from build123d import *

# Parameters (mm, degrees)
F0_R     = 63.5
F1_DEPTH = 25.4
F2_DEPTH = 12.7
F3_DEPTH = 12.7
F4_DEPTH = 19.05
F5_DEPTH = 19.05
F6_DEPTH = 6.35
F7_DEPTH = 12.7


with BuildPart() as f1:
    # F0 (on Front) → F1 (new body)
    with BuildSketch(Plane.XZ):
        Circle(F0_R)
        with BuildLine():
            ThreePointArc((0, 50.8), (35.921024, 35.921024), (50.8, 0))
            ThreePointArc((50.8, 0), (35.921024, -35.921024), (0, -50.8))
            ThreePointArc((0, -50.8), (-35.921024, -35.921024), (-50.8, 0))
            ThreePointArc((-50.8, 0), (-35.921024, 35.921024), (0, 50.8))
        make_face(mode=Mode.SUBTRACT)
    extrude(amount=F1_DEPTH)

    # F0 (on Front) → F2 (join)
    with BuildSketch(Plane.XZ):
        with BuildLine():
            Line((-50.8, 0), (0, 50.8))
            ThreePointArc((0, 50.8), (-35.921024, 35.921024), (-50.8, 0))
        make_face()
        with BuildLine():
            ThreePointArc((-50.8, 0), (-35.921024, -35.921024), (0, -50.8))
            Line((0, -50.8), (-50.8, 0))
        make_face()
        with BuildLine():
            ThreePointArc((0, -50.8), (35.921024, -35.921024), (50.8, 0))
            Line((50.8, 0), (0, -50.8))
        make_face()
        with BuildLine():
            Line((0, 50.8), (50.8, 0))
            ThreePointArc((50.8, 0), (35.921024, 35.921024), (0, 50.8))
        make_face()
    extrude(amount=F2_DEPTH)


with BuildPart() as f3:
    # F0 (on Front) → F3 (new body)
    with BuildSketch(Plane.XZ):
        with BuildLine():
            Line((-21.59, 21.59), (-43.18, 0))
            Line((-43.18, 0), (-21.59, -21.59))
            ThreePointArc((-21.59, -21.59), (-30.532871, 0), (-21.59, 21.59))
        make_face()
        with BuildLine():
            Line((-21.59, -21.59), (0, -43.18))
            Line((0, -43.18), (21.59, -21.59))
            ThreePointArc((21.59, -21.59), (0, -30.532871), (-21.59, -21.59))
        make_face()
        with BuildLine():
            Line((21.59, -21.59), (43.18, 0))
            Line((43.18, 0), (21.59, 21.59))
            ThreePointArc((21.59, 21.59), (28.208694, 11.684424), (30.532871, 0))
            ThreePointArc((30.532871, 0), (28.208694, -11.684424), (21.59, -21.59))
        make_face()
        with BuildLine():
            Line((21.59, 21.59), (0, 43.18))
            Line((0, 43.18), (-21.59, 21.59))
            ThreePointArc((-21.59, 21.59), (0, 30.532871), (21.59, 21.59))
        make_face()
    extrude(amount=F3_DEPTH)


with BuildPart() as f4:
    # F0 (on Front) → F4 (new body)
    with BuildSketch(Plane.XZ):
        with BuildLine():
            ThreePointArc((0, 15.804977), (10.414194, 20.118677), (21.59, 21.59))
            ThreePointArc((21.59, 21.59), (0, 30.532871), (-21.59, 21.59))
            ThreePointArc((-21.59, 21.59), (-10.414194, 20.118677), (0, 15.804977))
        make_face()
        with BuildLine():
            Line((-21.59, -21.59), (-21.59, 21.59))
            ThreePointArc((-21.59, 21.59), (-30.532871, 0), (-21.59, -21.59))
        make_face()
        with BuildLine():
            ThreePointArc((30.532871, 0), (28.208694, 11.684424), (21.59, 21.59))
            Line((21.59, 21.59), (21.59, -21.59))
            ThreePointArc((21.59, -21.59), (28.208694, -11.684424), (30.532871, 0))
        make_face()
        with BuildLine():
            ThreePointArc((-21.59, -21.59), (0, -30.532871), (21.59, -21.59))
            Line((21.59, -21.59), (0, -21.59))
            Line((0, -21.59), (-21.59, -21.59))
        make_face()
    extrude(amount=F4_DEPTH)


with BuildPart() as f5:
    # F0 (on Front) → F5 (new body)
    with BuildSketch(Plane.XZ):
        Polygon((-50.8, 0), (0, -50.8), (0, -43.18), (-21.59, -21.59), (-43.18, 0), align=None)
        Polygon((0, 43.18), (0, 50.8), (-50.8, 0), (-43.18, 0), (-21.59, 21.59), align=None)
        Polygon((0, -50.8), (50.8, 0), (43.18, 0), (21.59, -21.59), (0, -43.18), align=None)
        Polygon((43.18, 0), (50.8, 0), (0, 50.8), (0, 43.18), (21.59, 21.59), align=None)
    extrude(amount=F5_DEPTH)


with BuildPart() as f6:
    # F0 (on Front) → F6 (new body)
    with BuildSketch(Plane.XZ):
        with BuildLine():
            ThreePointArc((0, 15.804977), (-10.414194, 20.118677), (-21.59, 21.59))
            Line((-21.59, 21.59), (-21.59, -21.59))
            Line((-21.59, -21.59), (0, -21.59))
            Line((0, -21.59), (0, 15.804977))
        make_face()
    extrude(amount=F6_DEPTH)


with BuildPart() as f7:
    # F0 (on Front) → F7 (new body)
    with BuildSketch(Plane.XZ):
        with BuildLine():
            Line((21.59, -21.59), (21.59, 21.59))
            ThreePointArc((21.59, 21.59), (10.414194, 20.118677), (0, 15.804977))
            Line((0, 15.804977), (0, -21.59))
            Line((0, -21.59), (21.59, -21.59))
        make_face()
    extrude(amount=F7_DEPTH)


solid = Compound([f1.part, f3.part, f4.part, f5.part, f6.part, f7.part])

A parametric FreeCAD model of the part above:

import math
import FreeCAD as App
import Part
import Sketcher
Q = App.Units.Quantity


def add_polygon(sketch, points):
    """Adds a closed chain of lines whose ends are joined by coincident constraints."""
    first, n = sketch.GeometryCount, len(points)
    for a, b in zip(points, points[1:] + points[:1]):
        sketch.addGeometry(Part.LineSegment(App.Vector(*a, 0), App.Vector(*b, 0)), False)
    for i in range(n):
        sketch.addConstraint(Sketcher.Constraint("Coincident", first + i, 2, first + (i + 1) % n, 1))

doc = App.newDocument("Part")
body = doc.addObject("PartDesign::Body", "Body")

# Sketch on XZ plane
sketch1 = body.newObject("Sketcher::SketchObject", "Sketch")
sketch1.AttachmentSupport = (doc.getObject("XZ_Plane"), [""])
sketch1.MapMode = "FlatFace"
sketch1.addGeometry([
    Part.Circle(App.Vector(0, 0, 0), App.Vector(0, 0, 1), 64),  # 0
    Part.ArcOfCircle(Part.Circle(App.Vector(0, 0, 0), App.Vector(0, 0, 1), 51), math.radians(90), math.radians(180)),  # 1
    Part.ArcOfCircle(Part.Circle(App.Vector(0, 0, 0), App.Vector(0, 0, 1), 51), math.radians(0), math.radians(90)),  # 2
    Part.ArcOfCircle(Part.Circle(App.Vector(0, 0, 0), App.Vector(0, 0, 1), 51), math.radians(-90), math.radians(0)),  # 3
    Part.ArcOfCircle(Part.Circle(App.Vector(0, 0, 0), App.Vector(0, 0, 1), 51), math.radians(-180), math.radians(-90)),  # 4
], False)
sketch1.addConstraint([
    Sketcher.Constraint("Tangent", 1, 1, 2, 2),
    Sketcher.Constraint("Tangent", 2, 1, 3, 2),
    Sketcher.Constraint("Tangent", 3, 1, 4, 2),
    Sketcher.Constraint("Tangent", 4, 1, 1, 2),
    Sketcher.Constraint("Coincident", 0, 3, -1, 1),
    Sketcher.Constraint("Coincident", 1, 3, -1, 1),
    Sketcher.Constraint("Equal", 1, 2),
    Sketcher.Constraint("PointOnObject", 1, 1, -2),
    Sketcher.Constraint("PointOnObject", 2, 1, -1),
    Sketcher.Constraint("PointOnObject", 3, 1, -2),
    Sketcher.Constraint("PointOnObject", 4, 1, -1),
    Sketcher.Constraint("Diameter", 0, Q("5 in")),
    Sketcher.Constraint("Radius", 1, Q("2.0000001 in")),
])
pad1 = body.newObject("PartDesign::Pad", "Pad")
pad1.Profile = sketch1
pad1.Length = Q("1 in")

# Sketch on XZ plane
sketch2 = body.newObject("Sketcher::SketchObject", "Sketch001")
sketch2.AttachmentSupport = (doc.getObject("XZ_Plane"), [""])
sketch2.MapMode = "FlatFace"
sketch2.addGeometry([
    Part.LineSegment(App.Vector(-51, 0, 0), App.Vector(0, 51, 0)),  # 0
    Part.ArcOfCircle(Part.Circle(App.Vector(0, 0, 0), App.Vector(0, 0, 1), 51), math.radians(90), math.radians(180)),  # 1
    Part.ArcOfCircle(Part.Circle(App.Vector(0, 0, 0), App.Vector(0, 0, 1), 51), math.radians(-180), math.radians(-90)),  # 2
    Part.LineSegment(App.Vector(0, -51, 0), App.Vector(-51, 0, 0)),  # 3
    Part.ArcOfCircle(Part.Circle(App.Vector(0, 0, 0), App.Vector(0, 0, 1), 51), math.radians(-90), math.radians(0)),  # 4
    Part.LineSegment(App.Vector(51, 0, 0), App.Vector(0, -51, 0)),  # 5
    Part.LineSegment(App.Vector(0, 51, 0), App.Vector(51, 0, 0)),  # 6
    Part.ArcOfCircle(Part.Circle(App.Vector(0, 0, 0), App.Vector(0, 0, 1), 51), math.radians(0), math.radians(90)),  # 7
], False)
sketch2.addConstraint([
    Sketcher.Constraint("Coincident", 0, 1, 1, 2),
    Sketcher.Constraint("Coincident", 1, 1, 0, 2),
    Sketcher.Constraint("Coincident", 2, 1, 3, 2),
    Sketcher.Constraint("Coincident", 3, 1, 2, 2),
    Sketcher.Constraint("Coincident", 4, 1, 5, 2),
    Sketcher.Constraint("Coincident", 5, 1, 4, 2),
    Sketcher.Constraint("Coincident", 6, 1, 7, 2),
    Sketcher.Constraint("Coincident", 7, 1, 6, 2),
    Sketcher.Constraint("Coincident", 1, 3, -1, 1),
    Sketcher.Constraint("Coincident", 2, 3, -1, 1),
    Sketcher.Constraint("Coincident", 4, 3, -1, 1),
    Sketcher.Constraint("Coincident", 7, 3, -1, 1),
    Sketcher.Constraint("Coincident", 2, 1, 0, 1),
    Sketcher.Constraint("Coincident", 4, 1, 3, 1),
    Sketcher.Constraint("Coincident", 6, 1, 1, 1),
    Sketcher.Constraint("PointOnObject", 0, 1, -1),
    Sketcher.Constraint("PointOnObject", 1, 1, -2),
    Sketcher.Constraint("PointOnObject", 3, 1, -2),
    Sketcher.Constraint("PointOnObject", 5, 1, -1),
    Sketcher.Constraint("PointOnObject", 7, 1, -1),
    Sketcher.Constraint("Radius", 1, Q("2.0000001 in")),
])
pad2 = body.newObject("PartDesign::Pad", "Pad001")
pad2.Profile = sketch2
pad2.Length = Q("0.5 in")
body2 = doc.addObject("PartDesign::Body", "Body001")
body2.AllowCompound = True

# Sketch on XZ plane
sketch3 = body2.newObject("Sketcher::SketchObject", "Sketch002")
sketch3.AttachmentSupport = (doc.getObject("XZ_Plane001"), [""])
sketch3.MapMode = "FlatFace"
sketch3.addGeometry([
    Part.LineSegment(App.Vector(-22, 22, 0), App.Vector(-43, 0, 0)),  # 0
    Part.LineSegment(App.Vector(-43, 0, 0), App.Vector(-22, -22, 0)),  # 1
    Part.ArcOfCircle(Part.Circle(App.Vector(0, 0, 0), App.Vector(0, 0, 1), 31), math.radians(135), math.radians(225)),  # 2
    Part.LineSegment(App.Vector(-22, -22, 0), App.Vector(0, -43, 0)),  # 3
    Part.LineSegment(App.Vector(0, -43, 0), App.Vector(22, -22, 0)),  # 4
    Part.ArcOfCircle(Part.Circle(App.Vector(0, 0, 0), App.Vector(0, 0, 1), 31), math.radians(-135), math.radians(-45)),  # 5
    Part.LineSegment(App.Vector(22, -22, 0), App.Vector(43, 0, 0)),  # 6
    Part.LineSegment(App.Vector(43, 0, 0), App.Vector(22, 22, 0)),  # 7
    Part.ArcOfCircle(Part.Circle(App.Vector(0, 0, 0), App.Vector(0, 0, 1), 31), math.radians(0), math.radians(45)),  # 8
    Part.ArcOfCircle(Part.Circle(App.Vector(0, 0, 0), App.Vector(0, 0, 1), 31), math.radians(-45), math.radians(0)),  # 9
    Part.LineSegment(App.Vector(22, 22, 0), App.Vector(0, 43, 0)),  # 10
    Part.LineSegment(App.Vector(0, 43, 0), App.Vector(-22, 22, 0)),  # 11
    Part.ArcOfCircle(Part.Circle(App.Vector(0, 0, 0), App.Vector(0, 0, 1), 31), math.radians(45), math.radians(135)),  # 12
], False)
sketch3.addConstraint([
    Sketcher.Constraint("Coincident", 0, 2, 1, 1),
    Sketcher.Constraint("Tangent", 1, 2, 2, 2),
    Sketcher.Constraint("Tangent", 2, 1, 0, 1),
    Sketcher.Constraint("Coincident", 3, 2, 4, 1),
    Sketcher.Constraint("Tangent", 4, 2, 5, 2),
    Sketcher.Constraint("Tangent", 5, 1, 3, 1),
    Sketcher.Constraint("Coincident", 6, 2, 7, 1),
    Sketcher.Constraint("Tangent", 7, 2, 8, 2),
    Sketcher.Constraint("Tangent", 8, 1, 9, 2),
    Sketcher.Constraint("Tangent", 9, 1, 6, 1),
    Sketcher.Constraint("Coincident", 10, 2, 11, 1),
    Sketcher.Constraint("Tangent", 11, 2, 12, 2),
    Sketcher.Constraint("Tangent", 12, 1, 10, 1),
    Sketcher.Constraint("Coincident", 2, 3, -1, 1),
    Sketcher.Constraint("Coincident", 5, 3, -1, 1),
    Sketcher.Constraint("Coincident", 8, 3, -1, 1),
    Sketcher.Constraint("Coincident", 12, 3, -1, 1),
    Sketcher.Constraint("Coincident", 5, 1, 1, 2),
    Sketcher.Constraint("Coincident", 9, 1, 4, 2),
    Sketcher.Constraint("Coincident", 11, 2, 2, 1),
    Sketcher.Constraint("Coincident", 12, 1, 7, 2),
    Sketcher.Constraint("Symmetric", 0, 2, 6, 2, -1, 1),
    Sketcher.Constraint("PointOnObject", 0, 2, -1),
    Sketcher.Constraint("PointOnObject", 8, 1, -1),
    Sketcher.Constraint("Perpendicular", 0, 1),
    Sketcher.Constraint("DistanceX", 0, 2, -1, 1, Q("1.7 in")),
])
pad3 = body2.newObject("PartDesign::Pad", "Pad002")
pad3.Profile = sketch3
pad3.Length = Q("0.5 in")
body3 = doc.addObject("PartDesign::Body", "Body002")
body3.AllowCompound = True

# Sketch on XZ plane
sketch4 = body3.newObject("Sketcher::SketchObject", "Sketch003")
sketch4.AttachmentSupport = (doc.getObject("XZ_Plane002"), [""])
sketch4.MapMode = "FlatFace"
sketch4.addGeometry([
    Part.ArcOfCircle(Part.Circle(App.Vector(22, -22, 0), App.Vector(0, 0, 1), 43), math.radians(90), math.radians(120)),  # 0
    Part.ArcOfCircle(Part.Circle(App.Vector(0, 0, 0), App.Vector(0, 0, 1), 31), math.radians(45), math.radians(135)),  # 1
    Part.ArcOfCircle(Part.Circle(App.Vector(-22, -22, 0), App.Vector(0, 0, 1), 43), math.radians(60), math.radians(90)),  # 2
    Part.LineSegment(App.Vector(-22, -22, 0), App.Vector(-22, 22, 0)),  # 3
    Part.ArcOfCircle(Part.Circle(App.Vector(0, 0, 0), App.Vector(0, 0, 1), 31), math.radians(135), math.radians(225)),  # 4
    Part.ArcOfCircle(Part.Circle(App.Vector(0, 0, 0), App.Vector(0, 0, 1), 31), math.radians(0), math.radians(45)),  # 5
    Part.LineSegment(App.Vector(22, 22, 0), App.Vector(22, -22, 0)),  # 6
    Part.ArcOfCircle(Part.Circle(App.Vector(0, 0, 0), App.Vector(0, 0, 1), 31), math.radians(-45), math.radians(0)),  # 7
    Part.ArcOfCircle(Part.Circle(App.Vector(0, 0, 0), App.Vector(0, 0, 1), 31), math.radians(-135), math.radians(-45)),  # 8
    Part.LineSegment(App.Vector(22, -22, 0), App.Vector(-22, -22, 0)),  # 9
], False)
sketch4.addConstraint([
    Sketcher.Constraint("Coincident", 0, 1, 1, 1),
    Sketcher.Constraint("Coincident", 1, 2, 2, 2),
    Sketcher.Constraint("Coincident", 2, 1, 0, 2),
    Sketcher.Constraint("Coincident", 3, 1, 4, 2),
    Sketcher.Constraint("Coincident", 4, 1, 3, 2),
    Sketcher.Constraint("Coincident", 5, 2, 6, 1),
    Sketcher.Constraint("Coincident", 6, 2, 7, 1),
    Sketcher.Constraint("Tangent", 7, 2, 5, 1),
    Sketcher.Constraint("Coincident", 8, 1, 9, 2),
    Sketcher.Constraint("Coincident", 9, 1, 8, 2),
    Sketcher.Constraint("Vertical", 3),
    Sketcher.Constraint("Vertical", 6),
    Sketcher.Constraint("Horizontal", 9),
    Sketcher.Constraint("Coincident", 1, 3, -1, 1),
    Sketcher.Constraint("Coincident", 4, 3, -1, 1),
    Sketcher.Constraint("Coincident", 5, 3, -1, 1),
    Sketcher.Constraint("Coincident", 8, 3, -1, 1),
    Sketcher.Constraint("Coincident", 3, 1, 2, 3),
    Sketcher.Constraint("Coincident", 4, 1, 1, 2),
    Sketcher.Constraint("Coincident", 5, 2, 0, 1),
    Sketcher.Constraint("Coincident", 6, 2, 0, 3),
    Sketcher.Constraint("Coincident", 8, 1, 2, 3),
    Sketcher.Constraint("Coincident", 9, 1, 0, 3),
    Sketcher.Constraint("PointOnObject", 7, 2, -1),
    Sketcher.Constraint("Equal", 9, 3),
    Sketcher.Constraint("DistanceX", 9, 2, 9, 1, Q("1.7 in")),
])
pad4 = body3.newObject("PartDesign::Pad", "Pad003")
pad4.Profile = sketch4
pad4.Length = Q("0.75 in")
body4 = doc.addObject("PartDesign::Body", "Body003")

# Sketch on XZ plane
sketch5 = body4.newObject("Sketcher::SketchObject", "Sketch004")
sketch5.AttachmentSupport = (doc.getObject("XZ_Plane003"), [""])
sketch5.MapMode = "FlatFace"
add_polygon(sketch5, [(-51, 0), (0, -51), (51, 0), (0, 51)])  # lines 0-3
add_polygon(sketch5, [(43, 0), (0, -43), (-43, 0), (0, 43)])  # lines 4-7
sketch5.addConstraint([
    Sketcher.Constraint("Symmetric", 0, 2, 2, 2, -1, 1),
    Sketcher.Constraint("Symmetric", 1, 2, 3, 2, -1, 1),
    Sketcher.Constraint("Symmetric", 4, 2, 6, 2, -1, 1),
    Sketcher.Constraint("Symmetric", 5, 2, 7, 2, -1, 1),
    Sketcher.Constraint("PointOnObject", 0, 2, -2),
    Sketcher.Constraint("PointOnObject", 1, 2, -1),
    Sketcher.Constraint("PointOnObject", 4, 2, -2),
    Sketcher.Constraint("PointOnObject", 5, 2, -1),
    Sketcher.Constraint("Perpendicular", 0, 1),
    Sketcher.Constraint("Parallel", 3, 4),
    Sketcher.Constraint("DistanceY", 0, 2, -1, 1, Q("2 in")),
    Sketcher.Constraint("DistanceY", 4, 2, -1, 1, Q("1.7 in")),
])
pad5 = body4.newObject("PartDesign::Pad", "Pad004")
pad5.Profile = sketch5
pad5.Length = Q("0.75 in")
body5 = doc.addObject("PartDesign::Body", "Body004")

# Sketch on XZ plane
sketch6 = body5.newObject("Sketcher::SketchObject", "Sketch005")
sketch6.AttachmentSupport = (doc.getObject("XZ_Plane004"), [""])
sketch6.MapMode = "FlatFace"
sketch6.addGeometry([
    Part.ArcOfCircle(Part.Circle(App.Vector(-22, -22, 0), App.Vector(0, 0, 1), 43), math.radians(60), math.radians(90)),
    Part.LineSegment(App.Vector(-22, 22, 0), App.Vector(-22, -22, 0)),
    Part.LineSegment(App.Vector(-22, -22, 0), App.Vector(0, -22, 0)),
    Part.LineSegment(App.Vector(0, -22, 0), App.Vector(0, 16, 0)),
], False)
sketch6.addConstraint([
    Sketcher.Constraint("Coincident", 0, 2, 1, 1),
    Sketcher.Constraint("Coincident", 1, 2, 2, 1),
    Sketcher.Constraint("Coincident", 2, 2, 3, 1),
    Sketcher.Constraint("Coincident", 3, 2, 0, 1),
    Sketcher.Constraint("Vertical", 1),
    Sketcher.Constraint("Horizontal", 2),
    Sketcher.Constraint("Vertical", 3),
    Sketcher.Constraint("Coincident", 1, 2, 0, 3),
    Sketcher.Constraint("PointOnObject", 2, 2, -2),
    Sketcher.Constraint("DistanceY", 1, 2, 1, 1, Q("1.7 in")),
    Sketcher.Constraint("DistanceX", 2, 1, 2, 2, Q("0.85 in")),
    Sketcher.Constraint("DistanceY", -1, 1, 0, 2, Q("0.85 in")),
])
pad6 = body5.newObject("PartDesign::Pad", "Pad005")
pad6.Profile = sketch6
pad6.Length = Q("0.25 in")
body6 = doc.addObject("PartDesign::Body", "Body005")

# Sketch on XZ plane
sketch7 = body6.newObject("Sketcher::SketchObject", "Sketch006")
sketch7.AttachmentSupport = (doc.getObject("XZ_Plane005"), [""])
sketch7.MapMode = "FlatFace"
sketch7.addGeometry([
    Part.LineSegment(App.Vector(22, -22, 0), App.Vector(22, 22, 0)),
    Part.ArcOfCircle(Part.Circle(App.Vector(22, -22, 0), App.Vector(0, 0, 1), 43), math.radians(90), math.radians(120)),
    Part.LineSegment(App.Vector(0, 16, 0), App.Vector(0, -22, 0)),
    Part.LineSegment(App.Vector(0, -22, 0), App.Vector(22, -22, 0)),
], False)
sketch7.addConstraint([
    Sketcher.Constraint("Coincident", 0, 2, 1, 1),
    Sketcher.Constraint("Coincident", 1, 2, 2, 1),
    Sketcher.Constraint("Coincident", 2, 2, 3, 1),
    Sketcher.Constraint("Coincident", 3, 2, 0, 1),
    Sketcher.Constraint("Vertical", 0),
    Sketcher.Constraint("Vertical", 2),
    Sketcher.Constraint("Horizontal", 3),
    Sketcher.Constraint("Coincident", 3, 2, 1, 3),
    Sketcher.Constraint("PointOnObject", 1, 2, -2),
    Sketcher.Constraint("DistanceY", 0, 1, 0, 2, Q("1.7 in")),
    Sketcher.Constraint("DistanceX", 3, 1, 3, 2, Q("0.85 in")),
    Sketcher.Constraint("DistanceY", -1, 1, 0, 2, Q("0.85 in")),
])
pad7 = body6.newObject("PartDesign::Pad", "Pad006")
pad7.Profile = sketch7
pad7.Length = Q("0.5 in")

doc.recompute()
